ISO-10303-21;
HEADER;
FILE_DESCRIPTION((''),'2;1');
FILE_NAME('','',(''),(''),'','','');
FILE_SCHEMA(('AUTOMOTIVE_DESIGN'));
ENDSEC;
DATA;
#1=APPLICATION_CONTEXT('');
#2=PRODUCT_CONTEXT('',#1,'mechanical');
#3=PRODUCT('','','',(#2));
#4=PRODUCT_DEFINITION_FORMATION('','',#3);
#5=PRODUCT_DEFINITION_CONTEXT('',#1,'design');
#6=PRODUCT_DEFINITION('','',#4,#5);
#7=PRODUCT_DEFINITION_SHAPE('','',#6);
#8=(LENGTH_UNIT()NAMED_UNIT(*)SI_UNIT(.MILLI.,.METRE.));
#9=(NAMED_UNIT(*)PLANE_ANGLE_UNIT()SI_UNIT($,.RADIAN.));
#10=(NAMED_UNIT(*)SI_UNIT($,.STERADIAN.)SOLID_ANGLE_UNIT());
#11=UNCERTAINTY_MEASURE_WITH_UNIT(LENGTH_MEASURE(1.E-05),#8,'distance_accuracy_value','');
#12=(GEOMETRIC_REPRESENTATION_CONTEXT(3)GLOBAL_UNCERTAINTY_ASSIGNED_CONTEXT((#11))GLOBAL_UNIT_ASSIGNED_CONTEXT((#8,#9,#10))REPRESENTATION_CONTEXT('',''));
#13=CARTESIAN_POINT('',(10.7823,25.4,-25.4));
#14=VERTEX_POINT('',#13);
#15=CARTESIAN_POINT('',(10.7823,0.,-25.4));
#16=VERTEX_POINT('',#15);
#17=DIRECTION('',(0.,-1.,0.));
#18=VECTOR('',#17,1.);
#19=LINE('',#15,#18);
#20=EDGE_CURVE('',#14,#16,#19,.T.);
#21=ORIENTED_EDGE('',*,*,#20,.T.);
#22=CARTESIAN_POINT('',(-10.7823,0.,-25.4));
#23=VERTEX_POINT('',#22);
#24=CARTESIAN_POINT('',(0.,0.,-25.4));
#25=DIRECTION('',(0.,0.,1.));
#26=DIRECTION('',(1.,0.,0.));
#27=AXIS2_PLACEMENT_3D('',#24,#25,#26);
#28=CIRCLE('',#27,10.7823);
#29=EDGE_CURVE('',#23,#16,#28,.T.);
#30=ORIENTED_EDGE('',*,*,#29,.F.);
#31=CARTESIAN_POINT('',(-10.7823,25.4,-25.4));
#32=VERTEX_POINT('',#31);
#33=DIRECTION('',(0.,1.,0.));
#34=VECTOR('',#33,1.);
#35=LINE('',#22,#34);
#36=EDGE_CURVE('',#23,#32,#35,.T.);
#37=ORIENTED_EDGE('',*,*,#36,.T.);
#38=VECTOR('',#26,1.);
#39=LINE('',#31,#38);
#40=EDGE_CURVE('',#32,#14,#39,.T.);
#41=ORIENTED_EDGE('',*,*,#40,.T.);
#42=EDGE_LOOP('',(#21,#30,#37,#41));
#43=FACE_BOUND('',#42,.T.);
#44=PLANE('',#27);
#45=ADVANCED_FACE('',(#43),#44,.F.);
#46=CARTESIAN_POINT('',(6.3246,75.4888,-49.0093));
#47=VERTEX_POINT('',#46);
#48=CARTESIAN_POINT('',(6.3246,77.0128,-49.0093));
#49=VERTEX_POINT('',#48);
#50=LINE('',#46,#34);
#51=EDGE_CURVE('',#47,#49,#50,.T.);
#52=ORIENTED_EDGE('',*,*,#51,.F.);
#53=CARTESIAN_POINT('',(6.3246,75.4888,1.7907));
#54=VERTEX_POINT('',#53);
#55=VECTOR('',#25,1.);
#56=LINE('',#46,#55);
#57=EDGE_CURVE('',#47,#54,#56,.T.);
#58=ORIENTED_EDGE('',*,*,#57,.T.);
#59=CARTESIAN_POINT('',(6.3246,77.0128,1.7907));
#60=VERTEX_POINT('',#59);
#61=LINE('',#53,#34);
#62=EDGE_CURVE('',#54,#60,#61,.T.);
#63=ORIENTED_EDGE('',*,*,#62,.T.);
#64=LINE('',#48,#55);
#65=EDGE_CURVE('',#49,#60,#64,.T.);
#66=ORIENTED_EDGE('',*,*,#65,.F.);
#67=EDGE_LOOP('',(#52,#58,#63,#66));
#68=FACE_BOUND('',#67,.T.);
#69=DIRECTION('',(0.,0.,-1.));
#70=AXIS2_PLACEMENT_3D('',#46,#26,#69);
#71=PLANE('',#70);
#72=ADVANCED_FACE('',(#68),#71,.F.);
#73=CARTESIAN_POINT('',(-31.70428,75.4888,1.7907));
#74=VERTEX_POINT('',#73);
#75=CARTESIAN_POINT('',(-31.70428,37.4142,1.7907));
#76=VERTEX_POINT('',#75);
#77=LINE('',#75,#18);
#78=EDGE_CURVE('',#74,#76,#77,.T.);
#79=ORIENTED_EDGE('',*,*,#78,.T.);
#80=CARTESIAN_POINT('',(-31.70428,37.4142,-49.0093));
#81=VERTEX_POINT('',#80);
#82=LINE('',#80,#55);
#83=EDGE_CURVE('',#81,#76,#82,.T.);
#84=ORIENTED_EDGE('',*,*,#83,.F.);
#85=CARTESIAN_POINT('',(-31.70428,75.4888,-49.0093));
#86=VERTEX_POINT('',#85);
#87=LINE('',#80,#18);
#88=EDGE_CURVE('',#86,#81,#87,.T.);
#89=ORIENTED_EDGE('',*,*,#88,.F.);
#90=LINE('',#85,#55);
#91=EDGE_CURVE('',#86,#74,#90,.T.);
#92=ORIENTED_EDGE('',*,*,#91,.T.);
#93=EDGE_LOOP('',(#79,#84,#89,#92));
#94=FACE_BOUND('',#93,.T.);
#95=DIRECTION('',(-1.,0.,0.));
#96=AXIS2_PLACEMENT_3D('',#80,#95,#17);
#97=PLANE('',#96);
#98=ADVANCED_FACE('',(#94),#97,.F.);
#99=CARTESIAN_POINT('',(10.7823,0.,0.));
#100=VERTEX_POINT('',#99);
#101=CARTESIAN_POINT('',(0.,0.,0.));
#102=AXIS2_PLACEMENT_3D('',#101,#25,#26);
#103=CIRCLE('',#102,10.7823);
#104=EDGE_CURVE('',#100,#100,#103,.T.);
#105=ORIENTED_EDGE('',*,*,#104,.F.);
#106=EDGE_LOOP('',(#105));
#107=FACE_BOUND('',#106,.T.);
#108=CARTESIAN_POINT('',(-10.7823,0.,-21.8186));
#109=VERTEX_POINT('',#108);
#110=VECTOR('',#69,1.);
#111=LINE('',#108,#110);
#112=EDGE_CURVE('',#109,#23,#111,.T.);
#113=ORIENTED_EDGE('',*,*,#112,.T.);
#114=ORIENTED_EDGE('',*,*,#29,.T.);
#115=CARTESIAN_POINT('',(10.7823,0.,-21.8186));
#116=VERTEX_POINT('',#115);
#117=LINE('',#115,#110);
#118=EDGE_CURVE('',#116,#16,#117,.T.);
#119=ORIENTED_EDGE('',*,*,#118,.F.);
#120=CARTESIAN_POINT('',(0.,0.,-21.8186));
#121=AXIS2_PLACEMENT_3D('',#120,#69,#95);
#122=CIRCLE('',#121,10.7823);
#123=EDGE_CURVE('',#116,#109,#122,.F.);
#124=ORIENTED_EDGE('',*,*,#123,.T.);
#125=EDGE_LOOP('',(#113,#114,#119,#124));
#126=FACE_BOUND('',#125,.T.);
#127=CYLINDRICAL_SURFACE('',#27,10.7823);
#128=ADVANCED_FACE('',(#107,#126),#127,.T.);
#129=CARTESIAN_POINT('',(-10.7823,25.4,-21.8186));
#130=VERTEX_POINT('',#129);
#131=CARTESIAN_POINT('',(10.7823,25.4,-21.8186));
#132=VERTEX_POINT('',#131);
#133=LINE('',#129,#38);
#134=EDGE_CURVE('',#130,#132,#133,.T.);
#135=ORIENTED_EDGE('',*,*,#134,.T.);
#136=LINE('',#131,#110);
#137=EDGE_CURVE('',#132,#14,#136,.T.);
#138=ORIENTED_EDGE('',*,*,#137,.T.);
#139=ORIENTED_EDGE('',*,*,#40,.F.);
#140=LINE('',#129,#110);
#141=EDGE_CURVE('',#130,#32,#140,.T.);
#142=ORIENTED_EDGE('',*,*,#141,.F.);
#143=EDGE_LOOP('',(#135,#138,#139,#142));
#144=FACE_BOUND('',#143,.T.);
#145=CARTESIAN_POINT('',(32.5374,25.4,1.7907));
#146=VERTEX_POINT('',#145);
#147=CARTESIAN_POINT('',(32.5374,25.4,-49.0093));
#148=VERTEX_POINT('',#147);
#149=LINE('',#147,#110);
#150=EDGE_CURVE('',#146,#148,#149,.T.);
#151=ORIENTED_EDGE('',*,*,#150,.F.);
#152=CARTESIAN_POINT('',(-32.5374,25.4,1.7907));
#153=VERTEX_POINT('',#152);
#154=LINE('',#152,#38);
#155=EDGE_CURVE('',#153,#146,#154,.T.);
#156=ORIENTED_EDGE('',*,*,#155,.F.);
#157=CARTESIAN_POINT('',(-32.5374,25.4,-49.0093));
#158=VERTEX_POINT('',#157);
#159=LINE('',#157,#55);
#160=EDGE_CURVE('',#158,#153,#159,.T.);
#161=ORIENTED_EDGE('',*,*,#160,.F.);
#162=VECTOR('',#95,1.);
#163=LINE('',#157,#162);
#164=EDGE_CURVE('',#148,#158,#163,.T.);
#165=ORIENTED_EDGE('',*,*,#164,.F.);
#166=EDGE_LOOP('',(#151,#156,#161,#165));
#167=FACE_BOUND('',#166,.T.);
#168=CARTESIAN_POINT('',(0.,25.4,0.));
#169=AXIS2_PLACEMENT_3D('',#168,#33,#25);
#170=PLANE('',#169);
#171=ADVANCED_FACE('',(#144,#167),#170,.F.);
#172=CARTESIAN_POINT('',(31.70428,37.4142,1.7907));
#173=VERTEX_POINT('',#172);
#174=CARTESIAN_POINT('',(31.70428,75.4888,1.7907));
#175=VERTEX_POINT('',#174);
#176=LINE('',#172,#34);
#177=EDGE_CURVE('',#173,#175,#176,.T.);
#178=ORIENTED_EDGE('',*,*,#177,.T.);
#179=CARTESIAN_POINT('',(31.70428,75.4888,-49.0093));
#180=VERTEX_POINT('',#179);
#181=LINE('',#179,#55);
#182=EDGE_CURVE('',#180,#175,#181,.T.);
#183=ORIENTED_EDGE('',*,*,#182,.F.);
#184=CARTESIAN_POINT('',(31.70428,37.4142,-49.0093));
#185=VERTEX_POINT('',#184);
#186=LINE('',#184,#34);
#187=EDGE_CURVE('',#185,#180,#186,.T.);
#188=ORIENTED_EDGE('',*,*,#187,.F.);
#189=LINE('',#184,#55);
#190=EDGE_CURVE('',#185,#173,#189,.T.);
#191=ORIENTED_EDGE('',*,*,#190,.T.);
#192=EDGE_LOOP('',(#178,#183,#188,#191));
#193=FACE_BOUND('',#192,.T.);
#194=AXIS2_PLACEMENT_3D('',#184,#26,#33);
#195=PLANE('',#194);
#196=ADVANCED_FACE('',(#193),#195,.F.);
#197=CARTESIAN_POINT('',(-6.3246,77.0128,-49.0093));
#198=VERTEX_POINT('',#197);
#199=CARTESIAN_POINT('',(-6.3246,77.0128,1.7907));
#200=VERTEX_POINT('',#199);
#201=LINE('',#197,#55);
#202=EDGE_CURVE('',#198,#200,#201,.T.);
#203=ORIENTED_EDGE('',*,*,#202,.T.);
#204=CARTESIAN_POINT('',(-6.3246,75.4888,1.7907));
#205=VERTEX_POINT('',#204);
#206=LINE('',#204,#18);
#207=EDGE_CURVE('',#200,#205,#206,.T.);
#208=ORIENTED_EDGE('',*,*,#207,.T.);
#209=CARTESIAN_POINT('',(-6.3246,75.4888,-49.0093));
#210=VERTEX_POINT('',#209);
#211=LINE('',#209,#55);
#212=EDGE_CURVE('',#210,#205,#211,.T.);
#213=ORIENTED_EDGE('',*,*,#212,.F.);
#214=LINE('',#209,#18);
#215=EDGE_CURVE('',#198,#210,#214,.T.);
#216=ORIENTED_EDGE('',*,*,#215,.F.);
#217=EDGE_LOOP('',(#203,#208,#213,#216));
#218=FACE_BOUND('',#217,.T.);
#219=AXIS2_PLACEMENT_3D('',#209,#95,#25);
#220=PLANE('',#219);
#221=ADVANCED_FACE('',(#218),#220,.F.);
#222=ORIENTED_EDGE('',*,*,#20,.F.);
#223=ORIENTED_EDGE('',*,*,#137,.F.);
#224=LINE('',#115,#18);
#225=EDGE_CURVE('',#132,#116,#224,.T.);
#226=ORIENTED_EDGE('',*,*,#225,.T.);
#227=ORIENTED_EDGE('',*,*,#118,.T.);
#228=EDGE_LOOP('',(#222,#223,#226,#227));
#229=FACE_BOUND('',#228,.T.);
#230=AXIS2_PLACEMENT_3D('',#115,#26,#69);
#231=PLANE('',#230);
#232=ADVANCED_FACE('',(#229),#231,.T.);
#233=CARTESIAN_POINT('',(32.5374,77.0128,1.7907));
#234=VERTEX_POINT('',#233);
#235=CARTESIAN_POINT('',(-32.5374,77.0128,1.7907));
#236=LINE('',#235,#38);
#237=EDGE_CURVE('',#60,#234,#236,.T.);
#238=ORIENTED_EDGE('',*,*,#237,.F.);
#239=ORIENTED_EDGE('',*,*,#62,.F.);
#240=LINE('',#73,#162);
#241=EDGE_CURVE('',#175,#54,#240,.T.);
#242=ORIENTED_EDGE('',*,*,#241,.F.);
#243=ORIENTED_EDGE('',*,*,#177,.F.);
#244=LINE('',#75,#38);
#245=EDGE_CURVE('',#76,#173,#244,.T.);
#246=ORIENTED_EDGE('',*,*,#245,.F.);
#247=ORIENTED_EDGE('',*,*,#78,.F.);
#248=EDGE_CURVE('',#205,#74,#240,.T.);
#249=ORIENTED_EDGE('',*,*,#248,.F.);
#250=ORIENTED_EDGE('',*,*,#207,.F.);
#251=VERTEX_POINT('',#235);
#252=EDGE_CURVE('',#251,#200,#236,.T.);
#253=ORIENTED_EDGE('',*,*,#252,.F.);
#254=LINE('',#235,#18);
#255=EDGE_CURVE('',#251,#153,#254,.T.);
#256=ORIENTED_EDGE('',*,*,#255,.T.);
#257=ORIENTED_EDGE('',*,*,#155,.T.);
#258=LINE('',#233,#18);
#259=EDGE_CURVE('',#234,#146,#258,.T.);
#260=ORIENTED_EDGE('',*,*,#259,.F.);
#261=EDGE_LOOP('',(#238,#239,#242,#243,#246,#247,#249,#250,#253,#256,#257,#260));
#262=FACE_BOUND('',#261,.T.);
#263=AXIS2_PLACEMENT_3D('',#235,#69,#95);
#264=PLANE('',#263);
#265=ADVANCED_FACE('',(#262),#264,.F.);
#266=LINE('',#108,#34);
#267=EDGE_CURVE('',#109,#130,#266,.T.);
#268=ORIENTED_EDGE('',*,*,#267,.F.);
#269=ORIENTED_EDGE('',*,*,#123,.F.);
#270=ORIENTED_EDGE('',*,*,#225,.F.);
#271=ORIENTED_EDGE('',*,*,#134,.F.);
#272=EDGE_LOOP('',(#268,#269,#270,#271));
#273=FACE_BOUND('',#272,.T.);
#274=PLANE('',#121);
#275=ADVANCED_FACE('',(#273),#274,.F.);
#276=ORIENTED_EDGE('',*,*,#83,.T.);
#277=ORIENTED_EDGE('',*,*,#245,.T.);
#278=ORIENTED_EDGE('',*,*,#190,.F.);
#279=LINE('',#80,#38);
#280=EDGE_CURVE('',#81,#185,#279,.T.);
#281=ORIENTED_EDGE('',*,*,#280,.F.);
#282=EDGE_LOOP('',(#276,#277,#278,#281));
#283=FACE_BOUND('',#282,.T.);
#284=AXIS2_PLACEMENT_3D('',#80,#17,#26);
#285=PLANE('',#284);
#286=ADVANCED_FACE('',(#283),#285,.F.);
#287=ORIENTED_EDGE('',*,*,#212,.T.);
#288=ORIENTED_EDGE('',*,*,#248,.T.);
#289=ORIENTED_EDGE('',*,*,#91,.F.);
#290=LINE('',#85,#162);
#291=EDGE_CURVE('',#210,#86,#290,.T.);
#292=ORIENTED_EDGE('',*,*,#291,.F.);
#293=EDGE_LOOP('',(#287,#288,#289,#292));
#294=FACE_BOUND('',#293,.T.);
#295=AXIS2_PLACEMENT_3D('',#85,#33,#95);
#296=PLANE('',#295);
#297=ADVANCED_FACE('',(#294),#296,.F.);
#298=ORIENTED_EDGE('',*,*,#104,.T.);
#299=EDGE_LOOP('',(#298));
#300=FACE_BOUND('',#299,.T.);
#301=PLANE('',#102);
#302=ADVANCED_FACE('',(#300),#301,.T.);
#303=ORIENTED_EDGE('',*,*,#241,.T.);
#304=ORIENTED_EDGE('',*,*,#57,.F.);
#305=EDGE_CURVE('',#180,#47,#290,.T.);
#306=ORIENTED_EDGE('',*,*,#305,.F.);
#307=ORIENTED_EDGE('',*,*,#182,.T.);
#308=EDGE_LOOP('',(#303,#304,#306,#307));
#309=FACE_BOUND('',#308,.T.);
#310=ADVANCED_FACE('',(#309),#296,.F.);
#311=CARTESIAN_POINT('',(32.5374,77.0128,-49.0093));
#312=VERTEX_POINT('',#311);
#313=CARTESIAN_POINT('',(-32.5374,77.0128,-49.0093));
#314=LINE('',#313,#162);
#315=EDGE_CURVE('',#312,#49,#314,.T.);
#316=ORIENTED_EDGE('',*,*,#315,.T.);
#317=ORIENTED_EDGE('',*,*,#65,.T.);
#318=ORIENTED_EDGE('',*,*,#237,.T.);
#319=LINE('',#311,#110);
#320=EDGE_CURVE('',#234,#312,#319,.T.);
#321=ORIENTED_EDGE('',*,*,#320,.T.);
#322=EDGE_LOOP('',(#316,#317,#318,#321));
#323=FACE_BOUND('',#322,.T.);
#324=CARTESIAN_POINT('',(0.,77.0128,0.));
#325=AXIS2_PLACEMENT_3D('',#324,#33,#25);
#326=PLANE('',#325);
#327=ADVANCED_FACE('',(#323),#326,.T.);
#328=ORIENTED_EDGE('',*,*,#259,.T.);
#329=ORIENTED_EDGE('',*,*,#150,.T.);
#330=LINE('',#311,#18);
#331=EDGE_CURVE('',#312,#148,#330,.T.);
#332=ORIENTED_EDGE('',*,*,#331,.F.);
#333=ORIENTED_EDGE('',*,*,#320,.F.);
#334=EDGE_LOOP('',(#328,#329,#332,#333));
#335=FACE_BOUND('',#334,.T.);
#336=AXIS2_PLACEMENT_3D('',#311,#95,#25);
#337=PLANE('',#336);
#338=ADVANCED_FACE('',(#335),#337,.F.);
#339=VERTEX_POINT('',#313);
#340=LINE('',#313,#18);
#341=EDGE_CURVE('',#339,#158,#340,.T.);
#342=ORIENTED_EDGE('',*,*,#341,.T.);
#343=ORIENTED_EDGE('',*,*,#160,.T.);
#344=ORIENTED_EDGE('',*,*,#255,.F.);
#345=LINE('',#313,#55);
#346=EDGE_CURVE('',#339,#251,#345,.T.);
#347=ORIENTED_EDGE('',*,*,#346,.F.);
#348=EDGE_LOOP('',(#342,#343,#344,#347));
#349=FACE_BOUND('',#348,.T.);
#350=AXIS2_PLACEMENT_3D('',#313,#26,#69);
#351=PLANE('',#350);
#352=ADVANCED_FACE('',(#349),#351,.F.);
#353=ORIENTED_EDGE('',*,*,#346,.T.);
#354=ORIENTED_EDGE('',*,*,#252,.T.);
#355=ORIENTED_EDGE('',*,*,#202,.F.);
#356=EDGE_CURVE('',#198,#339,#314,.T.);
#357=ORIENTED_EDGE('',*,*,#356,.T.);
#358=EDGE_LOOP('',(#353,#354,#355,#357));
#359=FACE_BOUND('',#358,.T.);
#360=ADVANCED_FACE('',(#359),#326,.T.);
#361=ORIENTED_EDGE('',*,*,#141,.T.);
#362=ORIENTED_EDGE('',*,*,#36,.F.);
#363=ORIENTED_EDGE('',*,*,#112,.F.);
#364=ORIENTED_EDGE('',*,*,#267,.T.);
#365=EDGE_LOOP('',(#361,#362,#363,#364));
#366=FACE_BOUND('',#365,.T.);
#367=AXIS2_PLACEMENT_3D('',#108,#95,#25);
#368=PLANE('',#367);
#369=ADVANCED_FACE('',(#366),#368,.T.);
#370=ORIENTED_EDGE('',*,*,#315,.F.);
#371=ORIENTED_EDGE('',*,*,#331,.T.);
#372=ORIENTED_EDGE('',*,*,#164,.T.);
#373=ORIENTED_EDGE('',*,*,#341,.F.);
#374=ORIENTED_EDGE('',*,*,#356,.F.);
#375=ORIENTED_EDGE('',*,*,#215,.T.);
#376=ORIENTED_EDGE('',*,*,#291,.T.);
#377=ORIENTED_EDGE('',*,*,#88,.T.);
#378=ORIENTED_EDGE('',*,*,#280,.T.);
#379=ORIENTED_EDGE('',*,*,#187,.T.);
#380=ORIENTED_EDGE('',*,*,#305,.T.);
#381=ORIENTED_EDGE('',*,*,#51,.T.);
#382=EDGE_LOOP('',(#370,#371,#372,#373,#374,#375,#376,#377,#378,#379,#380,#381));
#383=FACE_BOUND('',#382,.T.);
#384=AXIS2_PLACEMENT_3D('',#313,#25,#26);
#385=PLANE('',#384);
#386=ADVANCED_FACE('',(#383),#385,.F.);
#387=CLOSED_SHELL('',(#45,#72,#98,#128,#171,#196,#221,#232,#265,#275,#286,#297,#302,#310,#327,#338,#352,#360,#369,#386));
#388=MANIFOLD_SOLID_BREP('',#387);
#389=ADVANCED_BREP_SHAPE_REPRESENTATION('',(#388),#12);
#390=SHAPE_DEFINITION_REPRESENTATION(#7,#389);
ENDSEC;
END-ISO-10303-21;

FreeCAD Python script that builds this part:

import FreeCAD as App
import Part
import Sketcher
Q = App.Units.Quantity


def add_polygon(sketch, points):
    """Adds a closed chain of lines whose ends are joined by coincident constraints."""
    first, n = sketch.GeometryCount, len(points)
    for a, b in zip(points, points[1:] + points[:1]):
        sketch.addGeometry(Part.LineSegment(App.Vector(*a, 0), App.Vector(*b, 0)), False)
    for i in range(n):
        sketch.addConstraint(Sketcher.Constraint("Coincident", first + i, 2, first + (i + 1) % n, 1))

doc = App.newDocument("Part")
body = doc.addObject("PartDesign::Body", "Body")

sketch1 = body.newObject("Sketcher::SketchObject", "Sketch")
sketch1.AttachmentSupport = (doc.getObject("XY_Plane"), [""])
sketch1.MapMode = "FlatFace"
sketch1.addGeometry(Part.Circle(App.Vector(0, 0, 0), App.Vector(0, 0, 1), 11), False)
sketch1.addConstraint(Sketcher.Constraint("Coincident", 0, 3, -1, 1))
sketch1.addConstraint(Sketcher.Constraint("Diameter", 0, Q("0.849 in")))
pad1 = body.newObject("PartDesign::Pad", "Pad")
pad1.Profile = sketch1
pad1.Length = Q("1 in")
pad1.Reversed = True

sketch2 = body.newObject("Sketcher::SketchObject", "Sketch001")
sketch2.AttachmentSupport = (doc.getObject("XY_Plane"), [""])
sketch2.MapMode = "FlatFace"
sketch2.AttachmentOffset = App.Placement(App.Vector(0, 0, -1 * 25.4), App.Rotation())
add_polygon(sketch2, [(11, 25), (11, 0), (-11, 0), (-11, 25)])
sketch2.addConstraint(Sketcher.Constraint("Vertical", 0))
sketch2.addConstraint(Sketcher.Constraint("Horizontal", 1))
sketch2.addConstraint(Sketcher.Constraint("Vertical", 2))
sketch2.addConstraint(Sketcher.Constraint("Horizontal", 3))
sketch2.addConstraint(Sketcher.Constraint("Symmetric", 0, 2, 1, 2, -1, 1))
sketch2.addConstraint(Sketcher.Constraint("DistanceY", 0, 2, 0, 1, Q("1 in")))
sketch2.addConstraint(Sketcher.Constraint("DistanceX", 1, 2, 1, 1, Q("0.849 in")))
pad2 = body.newObject("PartDesign::Pad", "Pad001")
pad2.Profile = sketch2
pad2.Length = Q("0.141 in")

sketch3 = body.newObject("Sketcher::SketchObject", "Sketch002")
sketch3.AttachmentSupport = (doc.getObject("XZ_Plane"), [""])
sketch3.MapMode = "FlatFace"
sketch3.AttachmentOffset = App.Placement(App.Vector(0, 0, -1 * 25.4), App.Rotation())
add_polygon(sketch3, [(-33, -49), (-33, 2), (33, 2), (33, -49)])
sketch3.addConstraint(Sketcher.Constraint("Vertical", 0))
sketch3.addConstraint(Sketcher.Constraint("Horizontal", 1))
sketch3.addConstraint(Sketcher.Constraint("Vertical", 2))
sketch3.addConstraint(Sketcher.Constraint("Horizontal", 3))
sketch3.addConstraint(Sketcher.Constraint("DistanceY", 0, 1, 0, 2, Q("2 in")))
sketch3.addConstraint(Sketcher.Constraint("DistanceX", 1, 1, 1, 2, Q("2.562 in")))
sketch3.addConstraint(Sketcher.Constraint("DistanceX", 0, 2, -1, 1, Q("1.281 in")))
sketch3.addConstraint(Sketcher.Constraint("DistanceY", -1, 1, 0, 2, Q("0.0705 in")))
pad3 = body.newObject("PartDesign::Pad", "Pad002")
pad3.Profile = sketch3
pad3.Length = Q("2.032 in")
pad3.Reversed = True

sketch4 = body.newObject("Sketcher::SketchObject", "Sketch003")
sketch4.AttachmentSupport = (doc.getObject("XY_Plane"), [""])
sketch4.MapMode = "FlatFace"
sketch4.AttachmentOffset = App.Placement(App.Vector(0, 0, 0.0705 * 25.4), App.Rotation())
add_polygon(sketch4, [(-32, 75), (-32, 37), (32, 37), (32, 75)])
sketch4.addConstraint(Sketcher.Constraint("Vertical", 0))
sketch4.addConstraint(Sketcher.Constraint("Horizontal", 1))
sketch4.addConstraint(Sketcher.Constraint("Vertical", 2))
sketch4.addConstraint(Sketcher.Constraint("Horizontal", 3))
sketch4.addConstraint(Sketcher.Constraint("DistanceY", 0, 2, 0, 1, Q("1.499 in")))
sketch4.addConstraint(Sketcher.Constraint("DistanceX", 1, 1, 1, 2, Q("2.4964 in")))
sketch4.addConstraint(Sketcher.Constraint("DistanceY", -1, 1, 0, 2, Q("1.473 in")))
sketch4.addConstraint(Sketcher.Constraint("DistanceX", 0, 2, -1, 1, Q("1.2482 in")))
pocket1 = body.newObject("PartDesign::Pocket", "Pocket")
pocket1.Profile = sketch4
pocket1.Type = "ThroughAll"

sketch5 = body.newObject("Sketcher::SketchObject", "Sketch004")
sketch5.AttachmentSupport = (doc.getObject("XY_Plane"), [""])
sketch5.MapMode = "FlatFace"
sketch5.AttachmentOffset = App.Placement(App.Vector(0, 0, 0.0705 * 25.4), App.Rotation())
add_polygon(sketch5, [(-6.3, 77), (-6.3, 75.5), (6.3, 75.5), (6.3, 77)])
sketch5.addConstraint(Sketcher.Constraint("Vertical", 0))
sketch5.addConstraint(Sketcher.Constraint("Horizontal", 1))
sketch5.addConstraint(Sketcher.Constraint("Vertical", 2))
sketch5.addConstraint(Sketcher.Constraint("Horizontal", 3))
sketch5.addConstraint(Sketcher.Constraint("DistanceY", 0, 2, 0, 1, Q("0.06 in")))
sketch5.addConstraint(Sketcher.Constraint("DistanceX", 1, 1, 1, 2, Q("0.498 in")))
sketch5.addConstraint(Sketcher.Constraint("DistanceX", 0, 2, -1, 1, Q("0.249 in")))
sketch5.addConstraint(Sketcher.Constraint("DistanceY", -1, 1, 0, 2, Q("2.972 in")))
pocket2 = body.newObject("PartDesign::Pocket", "Pocket001")
pocket2.Profile = sketch5
pocket2.Type = "ThroughAll"

doc.recompute()
